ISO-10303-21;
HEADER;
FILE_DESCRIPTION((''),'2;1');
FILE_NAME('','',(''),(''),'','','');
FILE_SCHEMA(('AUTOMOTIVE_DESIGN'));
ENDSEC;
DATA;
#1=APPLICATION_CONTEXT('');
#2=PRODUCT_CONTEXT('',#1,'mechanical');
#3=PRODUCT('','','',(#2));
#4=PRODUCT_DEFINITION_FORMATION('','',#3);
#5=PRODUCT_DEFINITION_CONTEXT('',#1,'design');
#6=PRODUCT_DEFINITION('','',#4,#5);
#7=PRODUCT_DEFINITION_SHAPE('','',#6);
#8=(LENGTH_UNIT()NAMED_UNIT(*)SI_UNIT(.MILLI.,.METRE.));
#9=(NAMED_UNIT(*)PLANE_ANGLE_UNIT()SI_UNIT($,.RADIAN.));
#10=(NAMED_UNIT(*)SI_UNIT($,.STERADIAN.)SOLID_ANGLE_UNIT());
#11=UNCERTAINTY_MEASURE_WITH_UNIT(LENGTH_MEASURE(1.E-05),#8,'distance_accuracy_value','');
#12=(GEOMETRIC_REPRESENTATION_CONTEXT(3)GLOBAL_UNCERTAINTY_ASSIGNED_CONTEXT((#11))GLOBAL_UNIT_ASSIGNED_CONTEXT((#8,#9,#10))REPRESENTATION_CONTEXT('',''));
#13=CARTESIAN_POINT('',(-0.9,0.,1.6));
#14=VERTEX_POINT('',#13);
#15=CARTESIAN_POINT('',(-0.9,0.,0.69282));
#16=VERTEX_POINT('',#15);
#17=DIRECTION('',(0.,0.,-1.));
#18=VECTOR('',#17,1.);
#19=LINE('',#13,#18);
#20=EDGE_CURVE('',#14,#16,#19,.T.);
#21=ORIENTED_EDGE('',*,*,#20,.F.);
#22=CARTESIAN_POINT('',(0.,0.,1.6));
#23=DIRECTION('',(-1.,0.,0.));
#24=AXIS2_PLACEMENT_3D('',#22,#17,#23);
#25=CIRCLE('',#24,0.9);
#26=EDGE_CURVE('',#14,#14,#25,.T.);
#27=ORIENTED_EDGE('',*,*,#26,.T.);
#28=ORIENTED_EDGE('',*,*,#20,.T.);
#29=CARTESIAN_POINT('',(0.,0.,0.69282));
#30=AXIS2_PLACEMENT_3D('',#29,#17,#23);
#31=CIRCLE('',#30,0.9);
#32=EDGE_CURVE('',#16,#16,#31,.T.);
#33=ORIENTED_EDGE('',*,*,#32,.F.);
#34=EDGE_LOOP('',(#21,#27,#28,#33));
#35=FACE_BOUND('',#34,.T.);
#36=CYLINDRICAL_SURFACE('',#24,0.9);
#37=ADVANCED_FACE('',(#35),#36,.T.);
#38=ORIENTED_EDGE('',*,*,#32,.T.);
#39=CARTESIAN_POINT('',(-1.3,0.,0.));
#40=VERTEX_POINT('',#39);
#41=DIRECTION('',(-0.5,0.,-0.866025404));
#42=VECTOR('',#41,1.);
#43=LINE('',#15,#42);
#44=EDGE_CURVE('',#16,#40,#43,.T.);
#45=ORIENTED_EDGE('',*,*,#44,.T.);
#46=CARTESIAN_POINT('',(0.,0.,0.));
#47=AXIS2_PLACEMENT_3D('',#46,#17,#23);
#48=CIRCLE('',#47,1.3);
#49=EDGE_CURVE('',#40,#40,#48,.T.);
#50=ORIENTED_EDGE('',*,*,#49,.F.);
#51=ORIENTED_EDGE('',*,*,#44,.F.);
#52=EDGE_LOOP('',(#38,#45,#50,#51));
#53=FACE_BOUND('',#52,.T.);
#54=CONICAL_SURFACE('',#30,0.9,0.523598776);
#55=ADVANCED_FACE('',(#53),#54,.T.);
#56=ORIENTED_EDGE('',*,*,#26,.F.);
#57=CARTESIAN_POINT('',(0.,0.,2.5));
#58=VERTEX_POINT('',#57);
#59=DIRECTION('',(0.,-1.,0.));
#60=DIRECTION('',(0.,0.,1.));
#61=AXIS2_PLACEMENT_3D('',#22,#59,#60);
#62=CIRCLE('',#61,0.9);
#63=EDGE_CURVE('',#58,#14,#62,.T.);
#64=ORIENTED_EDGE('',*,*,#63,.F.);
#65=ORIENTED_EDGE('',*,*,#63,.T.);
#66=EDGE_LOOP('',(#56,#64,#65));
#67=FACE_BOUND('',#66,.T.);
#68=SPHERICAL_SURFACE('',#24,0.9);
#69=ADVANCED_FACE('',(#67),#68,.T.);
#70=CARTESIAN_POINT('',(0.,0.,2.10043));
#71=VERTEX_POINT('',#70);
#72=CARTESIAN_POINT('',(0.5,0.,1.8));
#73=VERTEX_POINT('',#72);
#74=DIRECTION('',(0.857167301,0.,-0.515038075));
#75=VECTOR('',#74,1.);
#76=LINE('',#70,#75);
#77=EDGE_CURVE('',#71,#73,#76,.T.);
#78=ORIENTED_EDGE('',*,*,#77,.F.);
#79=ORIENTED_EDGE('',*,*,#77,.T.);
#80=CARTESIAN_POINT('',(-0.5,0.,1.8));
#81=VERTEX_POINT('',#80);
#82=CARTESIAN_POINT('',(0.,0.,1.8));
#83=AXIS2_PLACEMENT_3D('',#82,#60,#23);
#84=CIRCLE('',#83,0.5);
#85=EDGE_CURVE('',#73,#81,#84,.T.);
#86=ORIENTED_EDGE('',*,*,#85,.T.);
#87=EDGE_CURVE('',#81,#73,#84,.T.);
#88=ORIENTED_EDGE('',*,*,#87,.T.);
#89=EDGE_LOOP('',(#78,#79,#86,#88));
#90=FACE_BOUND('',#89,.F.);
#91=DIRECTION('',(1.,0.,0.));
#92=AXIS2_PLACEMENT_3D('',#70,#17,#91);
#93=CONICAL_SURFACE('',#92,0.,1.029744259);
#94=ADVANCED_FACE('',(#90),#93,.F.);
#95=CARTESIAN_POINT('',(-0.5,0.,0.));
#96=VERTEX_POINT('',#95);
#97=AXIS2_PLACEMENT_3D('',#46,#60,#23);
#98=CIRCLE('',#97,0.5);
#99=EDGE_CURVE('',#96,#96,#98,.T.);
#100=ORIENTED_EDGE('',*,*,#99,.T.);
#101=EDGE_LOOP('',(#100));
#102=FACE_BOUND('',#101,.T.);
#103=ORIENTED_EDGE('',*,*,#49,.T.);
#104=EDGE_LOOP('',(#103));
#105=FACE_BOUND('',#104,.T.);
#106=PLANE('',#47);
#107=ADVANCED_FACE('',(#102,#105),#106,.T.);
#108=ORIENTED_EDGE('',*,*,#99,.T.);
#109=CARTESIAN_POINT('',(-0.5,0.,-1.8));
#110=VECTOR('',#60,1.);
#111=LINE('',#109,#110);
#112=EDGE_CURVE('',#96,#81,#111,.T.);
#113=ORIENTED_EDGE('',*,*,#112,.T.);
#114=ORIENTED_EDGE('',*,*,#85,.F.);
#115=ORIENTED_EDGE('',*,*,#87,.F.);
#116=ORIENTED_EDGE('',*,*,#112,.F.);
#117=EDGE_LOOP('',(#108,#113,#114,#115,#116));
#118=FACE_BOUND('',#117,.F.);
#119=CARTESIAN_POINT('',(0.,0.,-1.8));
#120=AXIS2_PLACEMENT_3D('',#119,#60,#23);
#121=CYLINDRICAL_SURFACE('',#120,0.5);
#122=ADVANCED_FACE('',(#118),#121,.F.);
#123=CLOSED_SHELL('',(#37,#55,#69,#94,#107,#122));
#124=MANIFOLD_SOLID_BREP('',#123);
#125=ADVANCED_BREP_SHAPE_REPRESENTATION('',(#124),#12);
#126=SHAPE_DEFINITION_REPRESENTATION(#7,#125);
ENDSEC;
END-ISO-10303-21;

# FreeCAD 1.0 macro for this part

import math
import FreeCAD as App
import Part
import Sketcher

V = App.Vector
Q = App.Units.Quantity

doc = App.newDocument("Part")
body = doc.addObject("PartDesign::Body", "Body")

sketch1 = body.newObject("Sketcher::SketchObject", "Sketch")
sketch1.AttachmentSupport = (doc.getObject("XZ_Plane"), [""])
sketch1.MapMode = "FlatFace"
sketch1.addGeometry([
    Part.LineSegment(V(-1.3, 0, 0), V(0, 0, 0)),
    Part.LineSegment(V(0, 0, 0), V(0, 2.5, 0)),
    Part.ArcOfCircle(Part.Circle(V(0, 1.6, 0), V(0, 0, 1), 0.9), math.radians(90), math.radians(180)),
    Part.LineSegment(V(-0.9, 1.6, 0), V(-0.9, 0.69282, 0)),
    Part.LineSegment(V(-0.9, 0.69282, 0), V(-1.3, 0, 0)),
], False)
sketch1.addConstraint([
    Sketcher.Constraint("Coincident", 0, 2, 1, 1),
    Sketcher.Constraint("Coincident", 1, 2, 2, 1),
    Sketcher.Constraint("Tangent", 2, 2, 3, 1),
    Sketcher.Constraint("Coincident", 3, 2, 4, 1),
    Sketcher.Constraint("Coincident", 4, 2, 0, 1),
    Sketcher.Constraint("Horizontal", 0),
    Sketcher.Constraint("Vertical", 1),
    Sketcher.Constraint("Vertical", 3),
    Sketcher.Constraint("Coincident", 0, 2, -1, 1),
    Sketcher.Constraint("PointOnObject", 2, 3, -2),
    Sketcher.Constraint("Radius", 2, 0.9),
    Sketcher.Constraint("Angle", 4, Q("-120 deg")),
    Sketcher.Constraint("DistanceX", 0, 1, 0, 2, 1.3),
    Sketcher.Constraint("DistanceY", 1, 1, 1, 2, 2.5),
])
revolution = body.newObject("PartDesign::Revolution", "Revolution")
revolution.Profile = sketch1
revolution.ReferenceAxis = (sketch1, ["V_Axis"])
revolution.Angle = 360

sketch2 = body.newObject("Sketcher::SketchObject", "Sketch001")
sketch2.AttachmentSupport = (doc.getObject("XY_Plane"), [""])
sketch2.MapMode = "FlatFace"
sketch2.addGeometry(Part.Circle(V(0, 0, 0), V(0, 0, 1), 0.5), False)
sketch2.addConstraint([
    Sketcher.Constraint("Coincident", 0, 3, -1, 1),
    Sketcher.Constraint("Diameter", 0, 1.0),
])
doc.recompute()
hole = body.newObject("PartDesign::Hole", "Hole")
hole.Profile = sketch2
hole.ThreadType = "None"
hole.Diameter = 1
hole.DepthType = "Dimension"
hole.Depth = 1.8
hole.DrillPoint = "Angled"
hole.DrillPointAngle = 118
hole.Reversed = True

doc.recompute()
